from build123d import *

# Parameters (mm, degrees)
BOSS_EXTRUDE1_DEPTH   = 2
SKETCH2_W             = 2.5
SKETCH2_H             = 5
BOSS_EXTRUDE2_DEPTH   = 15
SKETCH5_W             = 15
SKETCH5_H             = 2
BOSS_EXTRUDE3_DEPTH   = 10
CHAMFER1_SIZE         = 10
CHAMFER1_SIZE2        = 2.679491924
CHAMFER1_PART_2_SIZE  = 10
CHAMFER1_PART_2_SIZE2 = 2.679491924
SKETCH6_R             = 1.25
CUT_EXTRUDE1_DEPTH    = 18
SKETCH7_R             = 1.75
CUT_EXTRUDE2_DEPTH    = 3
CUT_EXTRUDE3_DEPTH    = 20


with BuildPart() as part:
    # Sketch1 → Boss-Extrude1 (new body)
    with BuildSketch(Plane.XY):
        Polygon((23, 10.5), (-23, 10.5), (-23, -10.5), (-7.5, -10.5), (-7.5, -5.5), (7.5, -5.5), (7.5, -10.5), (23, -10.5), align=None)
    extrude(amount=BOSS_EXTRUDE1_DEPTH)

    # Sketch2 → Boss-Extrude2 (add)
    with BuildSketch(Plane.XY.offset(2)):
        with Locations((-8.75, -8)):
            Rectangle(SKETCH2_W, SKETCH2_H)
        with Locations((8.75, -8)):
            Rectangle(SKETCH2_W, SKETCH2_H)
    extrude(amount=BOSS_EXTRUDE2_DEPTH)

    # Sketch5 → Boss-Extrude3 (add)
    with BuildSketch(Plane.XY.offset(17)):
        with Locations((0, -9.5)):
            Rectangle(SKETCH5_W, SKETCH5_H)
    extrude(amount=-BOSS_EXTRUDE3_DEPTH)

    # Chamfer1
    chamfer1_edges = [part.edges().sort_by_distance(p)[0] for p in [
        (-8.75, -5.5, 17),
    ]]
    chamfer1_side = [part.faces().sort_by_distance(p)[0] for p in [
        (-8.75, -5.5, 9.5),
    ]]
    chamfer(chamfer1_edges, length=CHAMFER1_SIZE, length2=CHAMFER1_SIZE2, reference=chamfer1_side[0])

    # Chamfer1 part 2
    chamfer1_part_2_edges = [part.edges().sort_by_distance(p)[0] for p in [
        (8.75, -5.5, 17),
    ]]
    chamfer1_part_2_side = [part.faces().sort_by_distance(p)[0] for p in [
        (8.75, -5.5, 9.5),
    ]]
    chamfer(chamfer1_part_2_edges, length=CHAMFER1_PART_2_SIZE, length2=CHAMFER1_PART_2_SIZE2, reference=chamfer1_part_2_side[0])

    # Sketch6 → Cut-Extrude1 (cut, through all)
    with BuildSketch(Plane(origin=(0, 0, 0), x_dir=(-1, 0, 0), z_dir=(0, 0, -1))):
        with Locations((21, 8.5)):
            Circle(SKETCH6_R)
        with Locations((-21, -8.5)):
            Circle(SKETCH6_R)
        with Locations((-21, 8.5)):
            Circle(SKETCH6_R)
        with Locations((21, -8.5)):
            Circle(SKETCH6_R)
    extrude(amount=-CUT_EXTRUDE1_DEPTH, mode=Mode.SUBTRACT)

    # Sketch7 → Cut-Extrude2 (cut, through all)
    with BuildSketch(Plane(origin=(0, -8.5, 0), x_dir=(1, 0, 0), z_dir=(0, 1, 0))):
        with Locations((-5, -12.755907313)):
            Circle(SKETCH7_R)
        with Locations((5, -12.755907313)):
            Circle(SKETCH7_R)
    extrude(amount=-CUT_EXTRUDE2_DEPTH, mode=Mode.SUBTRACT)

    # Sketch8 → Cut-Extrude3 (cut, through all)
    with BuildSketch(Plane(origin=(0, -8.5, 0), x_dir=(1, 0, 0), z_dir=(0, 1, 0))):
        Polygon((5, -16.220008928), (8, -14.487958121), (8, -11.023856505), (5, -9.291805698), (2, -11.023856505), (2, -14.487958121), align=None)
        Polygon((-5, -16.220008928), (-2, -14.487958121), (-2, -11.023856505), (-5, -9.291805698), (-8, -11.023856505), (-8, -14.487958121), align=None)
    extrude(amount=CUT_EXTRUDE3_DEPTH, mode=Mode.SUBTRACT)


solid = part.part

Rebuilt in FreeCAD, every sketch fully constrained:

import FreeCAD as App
import Part
import Sketcher

V = App.Vector
Q = App.Units.Quantity


def edges_at(feature, points):
    """Names of the edges that pass closest to the given points."""
    edges = feature.Shape.Edges
    near = lambda p: min(range(len(edges)), key=lambda i: edges[i].distToShape(Part.Vertex(*p))[0])
    return sorted({f"Edge{near(p) + 1}" for p in points})

doc = App.newDocument("Part")
body = doc.addObject("PartDesign::Body", "Body")

sketch1 = body.newObject("Sketcher::SketchObject", "Sketch")
sketch1.AttachmentSupport = (doc.getObject("XY_Plane"), [""])
sketch1.MapMode = "FlatFace"
sketch1.addGeometry(Part.LineSegment(V(23, 10, 0), V(-23, 10, 0)), False)
sketch1.addGeometry(Part.LineSegment(V(-23, 10, 0), V(-23, -10, 0)), False)
sketch1.addGeometry(Part.LineSegment(V(-23, -10, 0), V(-8, -10, 0)), False)
sketch1.addGeometry(Part.LineSegment(V(-8, -10, 0), V(-8, -6, 0)), False)
sketch1.addGeometry(Part.LineSegment(V(-8, -6, 0), V(8, -6, 0)), False)
sketch1.addGeometry(Part.LineSegment(V(8, -6, 0), V(8, -10, 0)), False)
sketch1.addGeometry(Part.LineSegment(V(8, -10, 0), V(23, -10, 0)), False)
sketch1.addGeometry(Part.LineSegment(V(23, -10, 0), V(23, 10, 0)), False)
sketch1.addConstraint(Sketcher.Constraint("Coincident", 0, 2, 1, 1))
sketch1.addConstraint(Sketcher.Constraint("Coincident", 1, 2, 2, 1))
sketch1.addConstraint(Sketcher.Constraint("Coincident", 2, 2, 3, 1))
sketch1.addConstraint(Sketcher.Constraint("Coincident", 3, 2, 4, 1))
sketch1.addConstraint(Sketcher.Constraint("Coincident", 4, 2, 5, 1))
sketch1.addConstraint(Sketcher.Constraint("Coincident", 5, 2, 6, 1))
sketch1.addConstraint(Sketcher.Constraint("Coincident", 6, 2, 7, 1))
sketch1.addConstraint(Sketcher.Constraint("Coincident", 7, 2, 0, 1))
sketch1.addConstraint(Sketcher.Constraint("Horizontal", 0))
sketch1.addConstraint(Sketcher.Constraint("Vertical", 1))
sketch1.addConstraint(Sketcher.Constraint("Horizontal", 2))
sketch1.addConstraint(Sketcher.Constraint("Vertical", 3))
sketch1.addConstraint(Sketcher.Constraint("Horizontal", 4))
sketch1.addConstraint(Sketcher.Constraint("Vertical", 5))
sketch1.addConstraint(Sketcher.Constraint("Horizontal", 6))
sketch1.addConstraint(Sketcher.Constraint("Vertical", 7))
sketch1.addConstraint(Sketcher.Constraint("Symmetric", 0, 2, 6, 2, -1, 1))
sketch1.addConstraint(Sketcher.Constraint("Symmetric", 2, 2, 5, 2, -2))
sketch1.addConstraint(Sketcher.Constraint("DistanceX", 0, 2, 0, 1, Q("46 mm")))
sketch1.addConstraint(Sketcher.Constraint("DistanceX", 4, 1, 4, 2, Q("15 mm")))
sketch1.addConstraint(Sketcher.Constraint("DistanceY", 1, 2, 1, 1, Q("21 mm")))
sketch1.addConstraint(Sketcher.Constraint("DistanceY", 3, 1, 3, 2, Q("5 mm")))
pad1 = body.newObject("PartDesign::Pad", "Pad")
pad1.Profile = sketch1
pad1.Length = 2

sketch2 = body.newObject("Sketcher::SketchObject", "Sketch001")
sketch2.AttachmentSupport = (doc.getObject("XY_Plane"), [""])
sketch2.MapMode = "FlatFace"
sketch2.AttachmentOffset = App.Placement(V(0, 0, 2), App.Rotation())
sketch2.addGeometry(Part.LineSegment(V(-10, -5.5, 0), V(-10, -10.5, 0)), False)
sketch2.addGeometry(Part.LineSegment(V(-10, -10.5, 0), V(-7.5, -10.5, 0)), False)
sketch2.addGeometry(Part.LineSegment(V(-7.5, -10.5, 0), V(-7.5, -5.5, 0)), False)
sketch2.addGeometry(Part.LineSegment(V(-7.5, -5.5, 0), V(-10, -5.5, 0)), False)
sketch2.addGeometry(Part.LineSegment(V(7.5, -5.5, 0), V(7.5, -10.5, 0)), False)
sketch2.addGeometry(Part.LineSegment(V(7.5, -10.5, 0), V(10, -10.5, 0)), False)
sketch2.addGeometry(Part.LineSegment(V(10, -10.5, 0), V(10, -5.5, 0)), False)
sketch2.addGeometry(Part.LineSegment(V(10, -5.5, 0), V(7.5, -5.5, 0)), False)
sketch2.addConstraint(Sketcher.Constraint("Coincident", 0, 2, 1, 1))
sketch2.addConstraint(Sketcher.Constraint("Coincident", 1, 2, 2, 1))
sketch2.addConstraint(Sketcher.Constraint("Coincident", 2, 2, 3, 1))
sketch2.addConstraint(Sketcher.Constraint("Coincident", 3, 2, 0, 1))
sketch2.addConstraint(Sketcher.Constraint("Coincident", 4, 2, 5, 1))
sketch2.addConstraint(Sketcher.Constraint("Coincident", 5, 2, 6, 1))
sketch2.addConstraint(Sketcher.Constraint("Coincident", 6, 2, 7, 1))
sketch2.addConstraint(Sketcher.Constraint("Coincident", 7, 2, 4, 1))
sketch2.addConstraint(Sketcher.Constraint("Vertical", 0))
sketch2.addConstraint(Sketcher.Constraint("Horizontal", 1))
sketch2.addConstraint(Sketcher.Constraint("Vertical", 2))
sketch2.addConstraint(Sketcher.Constraint("Horizontal", 3))
sketch2.addConstraint(Sketcher.Constraint("Vertical", 4))
sketch2.addConstraint(Sketcher.Constraint("Horizontal", 5))
sketch2.addConstraint(Sketcher.Constraint("Vertical", 6))
sketch2.addConstraint(Sketcher.Constraint("Horizontal", 7))
sketch2.addConstraint(Sketcher.Constraint("Symmetric", 1, 2, 4, 2, -2))
sketch2.addConstraint(Sketcher.Constraint("Symmetric", 3, 2, 6, 2, -2))
sketch2.addConstraint(Sketcher.Constraint("DistanceY", 0, 2, 0, 1, Q("5 mm")))
sketch2.addConstraint(Sketcher.Constraint("DistanceX", 1, 1, 1, 2, Q("2.5 mm")))
sketch2.addConstraint(Sketcher.Constraint("DistanceX", 0, 2, -1, 1, Q("10 mm")))
sketch2.addConstraint(Sketcher.Constraint("DistanceY", 0, 2, -1, 1, Q("10.5 mm")))
pad2 = body.newObject("PartDesign::Pad", "Pad001")
pad2.Profile = sketch2
pad2.Length = 15

sketch3 = body.newObject("Sketcher::SketchObject", "Sketch002")
sketch3.AttachmentSupport = (doc.getObject("XY_Plane"), [""])
sketch3.MapMode = "FlatFace"
sketch3.AttachmentOffset = App.Placement(V(0, 0, 17), App.Rotation())
sketch3.addGeometry(Part.LineSegment(V(-7.5, -8.5, 0), V(-7.5, -10.5, 0)), False)
sketch3.addGeometry(Part.LineSegment(V(-7.5, -10.5, 0), V(7.5, -10.5, 0)), False)
sketch3.addGeometry(Part.LineSegment(V(7.5, -10.5, 0), V(7.5, -8.5, 0)), False)
sketch3.addGeometry(Part.LineSegment(V(7.5, -8.5, 0), V(-7.5, -8.5, 0)), False)
sketch3.addConstraint(Sketcher.Constraint("Coincident", 0, 2, 1, 1))
sketch3.addConstraint(Sketcher.Constraint("Coincident", 1, 2, 2, 1))
sketch3.addConstraint(Sketcher.Constraint("Coincident", 2, 2, 3, 1))
sketch3.addConstraint(Sketcher.Constraint("Coincident", 3, 2, 0, 1))
sketch3.addConstraint(Sketcher.Constraint("Vertical", 0))
sketch3.addConstraint(Sketcher.Constraint("Horizontal", 1))
sketch3.addConstraint(Sketcher.Constraint("Vertical", 2))
sketch3.addConstraint(Sketcher.Constraint("Horizontal", 3))
sketch3.addConstraint(Sketcher.Constraint("DistanceX", 1, 1, 1, 2, Q("15 mm")))
sketch3.addConstraint(Sketcher.Constraint("DistanceY", 0, 2, 0, 1, Q("2 mm")))
sketch3.addConstraint(Sketcher.Constraint("DistanceX", 0, 2, -1, 1, Q("7.5 mm")))
sketch3.addConstraint(Sketcher.Constraint("DistanceY", 0, 2, -1, 1, Q("10.5 mm")))
pad3 = body.newObject("PartDesign::Pad", "Pad002")
pad3.Profile = sketch3
pad3.Length = 10
pad3.Reversed = True
doc.recompute()

chamfer = body.newObject("PartDesign::Chamfer", "Chamfer")
chamfer.Base = (pad3, edges_at(pad3, [(-8.75, -5.5, 17)]))
chamfer.ChamferType = "Two distances"
chamfer.Size = 10
chamfer.Size2 = 2.679492
doc.recompute()

chamfer2 = body.newObject("PartDesign::Chamfer", "Chamfer001")
chamfer2.Base = (chamfer, edges_at(chamfer, [(8.75, -5.5, 17)]))
chamfer2.ChamferType = "Two distances"
chamfer2.Size = 10
chamfer2.Size2 = 2.679492
chamfer2.FlipDirection = True

sketch4 = body.newObject("Sketcher::SketchObject", "Sketch003")
sketch4.AttachmentSupport = (doc.getObject("XY_Plane"), [""])
sketch4.MapMode = "FlatFace"
sketch4.addGeometry(Part.Circle(V(-21, 8.5, 0), V(0, 0, 1), 1.2), False)
sketch4.addGeometry(Part.Circle(V(21, -8.5, 0), V(0, 0, 1), 1.2), False)
sketch4.addGeometry(Part.Circle(V(21, 8.5, 0), V(0, 0, 1), 1.2), False)
sketch4.addGeometry(Part.Circle(V(-21, -8.5, 0), V(0, 0, 1), 1.2), False)
sketch4.addConstraint(Sketcher.Constraint("Equal", 0, 1))
sketch4.addConstraint(Sketcher.Constraint("Equal", 1, 2))
sketch4.addConstraint(Sketcher.Constraint("Equal", 2, 3))
sketch4.addConstraint(Sketcher.Constraint("Symmetric", 0, 3, 1, 3, -1, 1))
sketch4.addConstraint(Sketcher.Constraint("Symmetric", 2, 3, 3, 3, -1, 1))
sketch4.addConstraint(Sketcher.Constraint("Symmetric", 0, 3, 2, 3, -2))
sketch4.addConstraint(Sketcher.Constraint("Diameter", 0, Q("2.5 mm")))
sketch4.addConstraint(Sketcher.Constraint("DistanceX", 0, 3, -1, 1, Q("21 mm")))
sketch4.addConstraint(Sketcher.Constraint("DistanceY", 1, 3, 0, 3, Q("17 mm")))
pocket1 = body.newObject("PartDesign::Pocket", "Pocket")
pocket1.Profile = sketch4
pocket1.Type = "ThroughAll"
pocket1.Reversed = True

sketch5 = body.newObject("Sketcher::SketchObject", "Sketch004")
sketch5.AttachmentSupport = (doc.getObject("XZ_Plane"), [""])
sketch5.MapMode = "FlatFace"
sketch5.AttachmentOffset = App.Placement(V(0, 0, 8.5), App.Rotation())
sketch5.addGeometry(Part.Circle(V(-5, 12.8, 0), V(0, 0, 1), 1.8), False)
sketch5.addGeometry(Part.Circle(V(5, 12.8, 0), V(0, 0, 1), 1.8), False)
sketch5.addConstraint(Sketcher.Constraint("Equal", 0, 1))
sketch5.addConstraint(Sketcher.Constraint("Symmetric", 0, 3, 1, 3, -2))
sketch5.addConstraint(Sketcher.Constraint("Diameter", 0, Q("3.5 mm")))
sketch5.addConstraint(Sketcher.Constraint("DistanceX", 0, 3, -1, 1, Q("5 mm")))
sketch5.addConstraint(Sketcher.Constraint("DistanceY", -1, 1, 0, 3, Q("12.755907 mm")))
pocket2 = body.newObject("PartDesign::Pocket", "Pocket001")
pocket2.Profile = sketch5
pocket2.Type = "ThroughAll"
pocket2.Reversed = True

sketch6 = body.newObject("Sketcher::SketchObject", "Sketch005")
sketch6.AttachmentSupport = (doc.getObject("XZ_Plane"), [""])
sketch6.MapMode = "FlatFace"
sketch6.AttachmentOffset = App.Placement(V(0, 0, 8.5), App.Rotation())
sketch6.addGeometry(Part.LineSegment(V(5, 16.2, 0), V(8, 14.5, 0)), False)
sketch6.addGeometry(Part.LineSegment(V(8, 14.5, 0), V(8, 11, 0)), False)
sketch6.addGeometry(Part.LineSegment(V(8, 11, 0), V(5, 9.3, 0)), False)
sketch6.addGeometry(Part.LineSegment(V(5, 9.3, 0), V(2, 11, 0)), False)
sketch6.addGeometry(Part.LineSegment(V(2, 11, 0), V(2, 14.5, 0)), False)
sketch6.addGeometry(Part.LineSegment(V(2, 14.5, 0), V(5, 16.2, 0)), False)
sketch6.addGeometry(Part.LineSegment(V(-5, 16.2, 0), V(-2, 14.5, 0)), False)
sketch6.addGeometry(Part.LineSegment(V(-2, 14.5, 0), V(-2, 11, 0)), False)
sketch6.addGeometry(Part.LineSegment(V(-2, 11, 0), V(-5, 9.3, 0)), False)
sketch6.addGeometry(Part.LineSegment(V(-5, 9.3, 0), V(-8, 11, 0)), False)
sketch6.addGeometry(Part.LineSegment(V(-8, 11, 0), V(-8, 14.5, 0)), False)
sketch6.addGeometry(Part.LineSegment(V(-8, 14.5, 0), V(-5, 16.2, 0)), False)
sketch6.addConstraint(Sketcher.Constraint("Coincident", 0, 2, 1, 1))
sketch6.addConstraint(Sketcher.Constraint("Coincident", 1, 2, 2, 1))
sketch6.addConstraint(Sketcher.Constraint("Coincident", 2, 2, 3, 1))
sketch6.addConstraint(Sketcher.Constraint("Coincident", 3, 2, 4, 1))
sketch6.addConstraint(Sketcher.Constraint("Coincident", 4, 2, 5, 1))
sketch6.addConstraint(Sketcher.Constraint("Coincident", 5, 2, 0, 1))
sketch6.addConstraint(Sketcher.Constraint("Coincident", 6, 2, 7, 1))
sketch6.addConstraint(Sketcher.Constraint("Coincident", 7, 2, 8, 1))
sketch6.addConstraint(Sketcher.Constraint("Coincident", 8, 2, 9, 1))
sketch6.addConstraint(Sketcher.Constraint("Coincident", 9, 2, 10, 1))
sketch6.addConstraint(Sketcher.Constraint("Coincident", 10, 2, 11, 1))
sketch6.addConstraint(Sketcher.Constraint("Coincident", 11, 2, 6, 1))
sketch6.addConstraint(Sketcher.Constraint("Vertical", 1))
sketch6.addConstraint(Sketcher.Constraint("Vertical", 4))
sketch6.addConstraint(Sketcher.Constraint("Vertical", 7))
sketch6.addConstraint(Sketcher.Constraint("Vertical", 10))
sketch6.addConstraint(Sketcher.Constraint("Symmetric", 4, 2, 6, 2, -2))
sketch6.addConstraint(Sketcher.Constraint("Symmetric", 2, 2, 8, 2, -2))
sketch6.addConstraint(Sketcher.Constraint("Symmetric", 1, 2, 9, 2, -2))
sketch6.addConstraint(Sketcher.Constraint("Symmetric", 5, 2, 11, 2, -2))
sketch6.addConstraint(Sketcher.Constraint("Parallel", 0, 3))
sketch6.addConstraint(Sketcher.Constraint("Parallel", 2, 5))
sketch6.addConstraint(Sketcher.Constraint("Parallel", 3, 6))
sketch6.addConstraint(Sketcher.Constraint("Parallel", 5, 8))
sketch6.addConstraint(Sketcher.Constraint("Parallel", 8, 11))
sketch6.addConstraint(Sketcher.Constraint("Horizontal", 1, 2, 3, 2))
sketch6.addConstraint(Sketcher.Constraint("Horizontal", 0, 2, 4, 2))
sketch6.addConstraint(Sketcher.Constraint("Angle", 0, Q("-30 deg")))
sketch6.addConstraint(Sketcher.Constraint("DistanceX", -1, 1, 0, 2, Q("8 mm")))
sketch6.addConstraint(Sketcher.Constraint("DistanceX", -1, 1, 2, 2, Q("5 mm")))
sketch6.addConstraint(Sketcher.Constraint("DistanceY", 1, 2, 1, 1, Q("3.464102 mm")))
sketch6.addConstraint(Sketcher.Constraint("DistanceY", -1, 1, 0, 2, Q("14.487958 mm")))
pocket3 = body.newObject("PartDesign::Pocket", "Pocket002")
pocket3.Profile = sketch6
pocket3.Type = "ThroughAll"

doc.recompute()
